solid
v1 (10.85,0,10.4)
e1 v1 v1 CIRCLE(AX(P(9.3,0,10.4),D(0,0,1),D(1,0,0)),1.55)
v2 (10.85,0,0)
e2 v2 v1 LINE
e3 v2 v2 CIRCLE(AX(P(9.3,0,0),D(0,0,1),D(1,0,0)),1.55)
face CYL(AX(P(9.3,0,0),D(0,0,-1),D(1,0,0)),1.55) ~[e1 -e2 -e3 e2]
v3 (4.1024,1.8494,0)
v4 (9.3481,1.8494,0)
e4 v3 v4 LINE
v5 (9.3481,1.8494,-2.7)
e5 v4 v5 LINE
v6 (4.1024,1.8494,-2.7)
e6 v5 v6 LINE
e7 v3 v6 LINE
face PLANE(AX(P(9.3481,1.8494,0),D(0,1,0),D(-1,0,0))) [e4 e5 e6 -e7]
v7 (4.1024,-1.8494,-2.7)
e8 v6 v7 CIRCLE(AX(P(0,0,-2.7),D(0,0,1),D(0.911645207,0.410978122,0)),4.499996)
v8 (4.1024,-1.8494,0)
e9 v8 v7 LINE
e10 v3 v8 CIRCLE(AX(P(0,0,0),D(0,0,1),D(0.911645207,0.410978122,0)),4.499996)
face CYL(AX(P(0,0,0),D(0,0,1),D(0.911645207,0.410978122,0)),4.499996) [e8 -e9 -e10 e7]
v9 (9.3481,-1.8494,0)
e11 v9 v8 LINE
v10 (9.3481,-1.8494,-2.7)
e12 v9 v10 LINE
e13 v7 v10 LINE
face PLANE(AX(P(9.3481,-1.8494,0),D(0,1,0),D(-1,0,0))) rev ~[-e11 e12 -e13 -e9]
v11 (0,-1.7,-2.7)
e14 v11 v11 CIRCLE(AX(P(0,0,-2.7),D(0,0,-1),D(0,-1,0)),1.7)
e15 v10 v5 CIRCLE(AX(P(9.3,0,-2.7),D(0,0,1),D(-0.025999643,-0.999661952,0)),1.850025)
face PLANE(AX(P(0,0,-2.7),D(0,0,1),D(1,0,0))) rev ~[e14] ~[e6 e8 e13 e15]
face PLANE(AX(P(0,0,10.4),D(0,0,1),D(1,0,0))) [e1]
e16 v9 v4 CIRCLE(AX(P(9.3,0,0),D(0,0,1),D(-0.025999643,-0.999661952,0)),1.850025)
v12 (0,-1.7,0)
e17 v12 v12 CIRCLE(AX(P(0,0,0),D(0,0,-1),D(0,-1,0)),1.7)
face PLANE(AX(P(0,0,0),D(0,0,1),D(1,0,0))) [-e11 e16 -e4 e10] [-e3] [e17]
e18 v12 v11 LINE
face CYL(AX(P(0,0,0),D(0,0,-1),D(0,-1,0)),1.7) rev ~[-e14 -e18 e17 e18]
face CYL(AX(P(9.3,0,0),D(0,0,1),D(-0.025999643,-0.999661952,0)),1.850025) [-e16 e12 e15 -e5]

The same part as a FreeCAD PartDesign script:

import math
import FreeCAD as App
import Part
import Sketcher
from FreeCAD import Vector
Q = App.Units.Quantity

doc = App.newDocument("Part")
body = doc.addObject("PartDesign::Body", "Body")

sketch1 = doc.addObject("Sketcher::SketchObject", "Sketch")
body.addObject(sketch1)
sketch1.AttachmentSupport = (doc.XY_Plane, [""])
sketch1.MapMode = "FlatFace"
sketch1.addGeometry([
    Part.ArcOfCircle(Part.Circle(Vector(9.3, 0, 0), Vector(0, 0, 1), 1.9), math.radians(-89), math.radians(89)),
    Part.LineSegment(Vector(9.3, 1.8, 0), Vector(4.1, 1.8, 0)),
    Part.ArcOfCircle(Part.Circle(Vector(0, 0, 0), Vector(0, 0, 1), 4.5), math.radians(24), math.radians(336)),
    Part.LineSegment(Vector(4.1, -1.8, 0), Vector(9.3, -1.8, 0)),
], False)
sketch1.addConstraint([
    Sketcher.Constraint("Coincident", 0, 2, 1, 1),
    Sketcher.Constraint("Coincident", 1, 2, 2, 1),
    Sketcher.Constraint("Coincident", 2, 2, 3, 1),
    Sketcher.Constraint("Coincident", 3, 2, 0, 1),
    Sketcher.Constraint("Horizontal", 1),
    Sketcher.Constraint("Horizontal", 3),
    Sketcher.Constraint("Coincident", 2, 3, -1, 1),
    Sketcher.Constraint("Symmetric", 0, 2, 3, 2, -1),
    Sketcher.Constraint("Radius", 2, Q("4.5 mm")),
    Sketcher.Constraint("Radius", 0, Q("1.85 mm")),
    Sketcher.Constraint("DistanceX", -1, 1, 0, 3, Q("9.3 mm")),
    Sketcher.Constraint("DistanceX", 1, 2, 1, 1, Q("5.2457 mm")),
])
pad1 = doc.addObject("PartDesign::Pad", "Pad")
body.addObject(pad1)
pad1.Profile = sketch1
pad1.Length = 2.7
pad1.Reversed = True

sketch2 = doc.addObject("Sketcher::SketchObject", "Sketch001")
body.addObject(sketch2)
sketch2.AttachmentSupport = (doc.XY_Plane, [""])
sketch2.MapMode = "FlatFace"
sketch2.addGeometry(Part.Circle(Vector(0, 0, 0), Vector(0, 0, 1), 1.7), False)
sketch2.addConstraint([
    Sketcher.Constraint("Coincident", 0, 3, -1, 1),
    Sketcher.Constraint("Diameter", 0, Q("3.4 mm")),
])
doc.recompute()
hole = doc.addObject("PartDesign::Hole", "Hole")
body.addObject(hole)
hole.Profile = sketch2
hole.ThreadType = "None"
hole.Diameter = 3.4
hole.DepthType = "Dimension"
hole.Depth = 2.7
hole.DrillPoint = "Angled"
hole.DrillPointAngle = 118

sketch3 = doc.addObject("Sketcher::SketchObject", "Sketch002")
body.addObject(sketch3)
sketch3.AttachmentSupport = (doc.XY_Plane, [""])
sketch3.MapMode = "FlatFace"
sketch3.addGeometry(Part.Circle(Vector(9.3, 0, 0), Vector(0, 0, 1), 1.6), False)
sketch3.addConstraint([
    Sketcher.Constraint("PointOnObject", 0, 3, -1),
    Sketcher.Constraint("Diameter", 0, Q("3.1 mm")),
    Sketcher.Constraint("DistanceX", -1, 1, 0, 3, Q("9.3 mm")),
])
pad2 = doc.addObject("PartDesign::Pad", "Pad001")
body.addObject(pad2)
pad2.Profile = sketch3
pad2.Length = 10.4

doc.recompute()
